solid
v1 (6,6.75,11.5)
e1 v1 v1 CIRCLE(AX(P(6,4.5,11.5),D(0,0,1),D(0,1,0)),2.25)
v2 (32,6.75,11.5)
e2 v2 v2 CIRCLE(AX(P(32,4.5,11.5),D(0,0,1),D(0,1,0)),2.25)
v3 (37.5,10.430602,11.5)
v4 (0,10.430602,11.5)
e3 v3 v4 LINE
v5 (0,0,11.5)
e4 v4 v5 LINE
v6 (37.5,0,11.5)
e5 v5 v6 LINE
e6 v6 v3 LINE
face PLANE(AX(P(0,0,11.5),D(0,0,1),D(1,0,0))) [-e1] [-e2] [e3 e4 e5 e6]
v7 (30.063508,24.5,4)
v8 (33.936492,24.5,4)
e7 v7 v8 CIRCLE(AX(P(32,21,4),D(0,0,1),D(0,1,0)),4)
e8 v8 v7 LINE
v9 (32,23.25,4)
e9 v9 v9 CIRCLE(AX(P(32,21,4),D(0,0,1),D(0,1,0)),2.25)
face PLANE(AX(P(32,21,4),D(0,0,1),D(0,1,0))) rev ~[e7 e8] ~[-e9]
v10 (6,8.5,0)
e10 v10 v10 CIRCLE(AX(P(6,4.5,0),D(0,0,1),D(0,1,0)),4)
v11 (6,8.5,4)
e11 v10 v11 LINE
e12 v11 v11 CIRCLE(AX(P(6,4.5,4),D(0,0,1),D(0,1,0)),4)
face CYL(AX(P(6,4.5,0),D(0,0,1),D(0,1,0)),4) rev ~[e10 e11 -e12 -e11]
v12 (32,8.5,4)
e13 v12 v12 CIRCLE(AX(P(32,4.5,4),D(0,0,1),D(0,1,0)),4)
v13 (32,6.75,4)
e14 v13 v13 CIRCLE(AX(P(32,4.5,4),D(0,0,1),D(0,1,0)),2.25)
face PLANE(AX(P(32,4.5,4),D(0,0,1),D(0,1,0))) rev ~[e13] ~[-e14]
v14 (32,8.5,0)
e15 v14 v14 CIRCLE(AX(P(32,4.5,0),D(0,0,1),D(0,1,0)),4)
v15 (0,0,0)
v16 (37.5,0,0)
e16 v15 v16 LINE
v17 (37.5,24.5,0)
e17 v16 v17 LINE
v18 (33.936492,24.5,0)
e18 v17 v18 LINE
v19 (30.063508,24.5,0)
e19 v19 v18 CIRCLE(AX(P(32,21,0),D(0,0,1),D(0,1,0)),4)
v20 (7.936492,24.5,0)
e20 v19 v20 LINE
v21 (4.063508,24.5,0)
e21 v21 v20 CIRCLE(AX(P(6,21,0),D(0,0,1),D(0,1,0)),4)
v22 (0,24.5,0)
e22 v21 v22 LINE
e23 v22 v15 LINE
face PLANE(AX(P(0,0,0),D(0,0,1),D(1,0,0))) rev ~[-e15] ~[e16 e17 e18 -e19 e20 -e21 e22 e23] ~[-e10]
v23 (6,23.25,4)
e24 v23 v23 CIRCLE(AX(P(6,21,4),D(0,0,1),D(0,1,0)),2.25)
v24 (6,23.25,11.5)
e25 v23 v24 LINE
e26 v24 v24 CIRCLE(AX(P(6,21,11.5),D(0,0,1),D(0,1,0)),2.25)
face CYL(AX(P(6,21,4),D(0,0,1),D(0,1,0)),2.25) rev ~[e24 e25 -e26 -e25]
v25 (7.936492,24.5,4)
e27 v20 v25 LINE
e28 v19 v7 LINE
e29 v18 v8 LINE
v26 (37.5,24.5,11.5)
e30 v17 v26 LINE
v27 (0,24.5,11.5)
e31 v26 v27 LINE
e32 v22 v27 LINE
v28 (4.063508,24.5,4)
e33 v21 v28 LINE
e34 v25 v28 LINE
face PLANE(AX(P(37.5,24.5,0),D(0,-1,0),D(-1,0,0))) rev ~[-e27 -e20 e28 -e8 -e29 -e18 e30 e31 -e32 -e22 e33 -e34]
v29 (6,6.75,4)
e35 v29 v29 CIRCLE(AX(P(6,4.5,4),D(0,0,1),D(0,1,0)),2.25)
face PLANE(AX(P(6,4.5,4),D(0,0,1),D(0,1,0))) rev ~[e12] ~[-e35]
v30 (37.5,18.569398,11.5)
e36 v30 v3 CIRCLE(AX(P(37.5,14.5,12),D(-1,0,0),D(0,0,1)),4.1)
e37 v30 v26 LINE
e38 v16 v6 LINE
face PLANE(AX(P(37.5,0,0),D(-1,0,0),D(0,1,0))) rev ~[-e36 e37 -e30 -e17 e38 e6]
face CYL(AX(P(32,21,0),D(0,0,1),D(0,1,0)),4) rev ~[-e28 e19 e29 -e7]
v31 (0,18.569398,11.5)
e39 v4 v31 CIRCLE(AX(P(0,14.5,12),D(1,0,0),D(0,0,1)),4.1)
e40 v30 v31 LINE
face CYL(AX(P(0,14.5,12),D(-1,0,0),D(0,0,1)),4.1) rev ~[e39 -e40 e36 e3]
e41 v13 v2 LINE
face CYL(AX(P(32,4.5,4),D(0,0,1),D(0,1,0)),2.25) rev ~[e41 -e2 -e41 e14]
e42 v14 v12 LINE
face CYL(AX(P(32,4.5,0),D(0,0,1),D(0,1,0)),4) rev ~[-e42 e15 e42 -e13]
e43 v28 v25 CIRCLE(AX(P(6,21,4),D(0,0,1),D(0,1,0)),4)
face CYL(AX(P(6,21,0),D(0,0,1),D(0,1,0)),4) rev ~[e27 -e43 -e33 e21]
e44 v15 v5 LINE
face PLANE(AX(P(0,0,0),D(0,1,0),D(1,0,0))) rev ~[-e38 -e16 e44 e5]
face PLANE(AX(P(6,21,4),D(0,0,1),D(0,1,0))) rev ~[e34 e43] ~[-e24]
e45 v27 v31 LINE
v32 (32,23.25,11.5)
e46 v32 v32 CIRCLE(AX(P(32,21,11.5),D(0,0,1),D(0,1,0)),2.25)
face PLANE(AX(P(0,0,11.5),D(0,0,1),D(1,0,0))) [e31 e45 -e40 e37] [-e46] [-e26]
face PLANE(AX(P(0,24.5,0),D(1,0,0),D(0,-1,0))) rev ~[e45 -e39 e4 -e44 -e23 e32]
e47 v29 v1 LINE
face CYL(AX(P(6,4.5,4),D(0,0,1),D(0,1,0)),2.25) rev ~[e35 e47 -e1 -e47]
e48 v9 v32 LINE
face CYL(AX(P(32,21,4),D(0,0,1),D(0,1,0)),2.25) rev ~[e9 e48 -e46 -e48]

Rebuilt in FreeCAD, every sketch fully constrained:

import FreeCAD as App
import Part
import Sketcher
from FreeCAD import Vector


def add_polygon(sketch, points):
    """Adds a closed chain of lines whose ends are joined by coincident constraints."""
    first, n = sketch.GeometryCount, len(points)
    for a, b in zip(points, points[1:] + points[:1]):
        sketch.addGeometry(Part.LineSegment(App.Vector(*a, 0), App.Vector(*b, 0)), False)
    for i in range(n):
        sketch.addConstraint(Sketcher.Constraint("Coincident", first + i, 2, first + (i + 1) % n, 1))

doc = App.newDocument("Part")
body = doc.addObject("PartDesign::Body", "Body")

# Sketch on XY plane
sketch1 = doc.addObject("Sketcher::SketchObject", "Sketch")
body.addObject(sketch1)
sketch1.AttachmentSupport = (doc.XY_Plane, [""])
sketch1.MapMode = "FlatFace"
add_polygon(sketch1, [(0, 24), (0, 0), (38, 0), (38, 24)])  # lines 0-3
sketch1.addConstraint(Sketcher.Constraint("Vertical", 0))
sketch1.addConstraint(Sketcher.Constraint("Horizontal", 1))
sketch1.addConstraint(Sketcher.Constraint("Vertical", 2))
sketch1.addConstraint(Sketcher.Constraint("Horizontal", 3))
sketch1.addConstraint(Sketcher.Constraint("Coincident", 0, 2, -1, 1))
sketch1.addConstraint(Sketcher.Constraint("DistanceX", 1, 1, 1, 2, 37.5))
sketch1.addConstraint(Sketcher.Constraint("DistanceY", 0, 2, 0, 1, 24.5))
pad1 = doc.addObject("PartDesign::Pad", "Pad")
body.addObject(pad1)
pad1.Profile = sketch1
pad1.Length = 11.5

# Sketch on YZ plane
sketch2 = doc.addObject("Sketcher::SketchObject", "Sketch001")
body.addObject(sketch2)
sketch2.AttachmentSupport = (doc.YZ_Plane, [""])
sketch2.MapMode = "FlatFace"
sketch2.addGeometry(Part.Circle(Vector(14.5, 12, 0), Vector(0, 0, 1), 4.1), False)
sketch2.addConstraint(Sketcher.Constraint("Diameter", 0, 8.2))
sketch2.addConstraint(Sketcher.Constraint("DistanceY", -1, 1, 0, 3, 12.0))
sketch2.addConstraint(Sketcher.Constraint("DistanceX", -1, 1, 0, 3, 14.5))
pocket1 = doc.addObject("PartDesign::Pocket", "Pocket")
body.addObject(pocket1)
pocket1.Profile = sketch2
pocket1.Length = 37.5
pocket1.Reversed = True

# Sketch on XY plane
sketch3 = doc.addObject("Sketcher::SketchObject", "Sketch002")
body.addObject(sketch3)
sketch3.AttachmentSupport = (doc.XY_Plane, [""])
sketch3.MapMode = "FlatFace"
sketch3.addGeometry(Part.Circle(Vector(6, 21, 0), Vector(0, 0, 1), 2.2), False)
sketch3.addGeometry(Part.Circle(Vector(32, 21, 0), Vector(0, 0, 1), 2.2), False)
sketch3.addGeometry(Part.Circle(Vector(32, 4.5, 0), Vector(0, 0, 1), 2.2), False)
sketch3.addGeometry(Part.Circle(Vector(6, 4.5, 0), Vector(0, 0, 1), 2.2), False)
sketch3.addConstraint(Sketcher.Constraint("Equal", 0, 1))
sketch3.addConstraint(Sketcher.Constraint("Equal", 1, 2))
sketch3.addConstraint(Sketcher.Constraint("Equal", 2, 3))
sketch3.addConstraint(Sketcher.Constraint("Horizontal", 0, 3, 1, 3))
sketch3.addConstraint(Sketcher.Constraint("Horizontal", 2, 3, 3, 3))
sketch3.addConstraint(Sketcher.Constraint("Vertical", 1, 3, 2, 3))
sketch3.addConstraint(Sketcher.Constraint("Vertical", 0, 3, 3, 3))
sketch3.addConstraint(Sketcher.Constraint("Diameter", 0, 4.5))
sketch3.addConstraint(Sketcher.Constraint("DistanceX", -1, 1, 0, 3, 6.0))
sketch3.addConstraint(Sketcher.Constraint("DistanceY", -1, 1, 0, 3, 21.0))
sketch3.addConstraint(Sketcher.Constraint("DistanceX", -1, 1, 1, 3, 32.0))
sketch3.addConstraint(Sketcher.Constraint("DistanceY", -1, 1, 2, 3, 4.5))
doc.recompute()
hole = doc.addObject("PartDesign::Hole", "Hole")
body.addObject(hole)
hole.Profile = sketch3
hole.ThreadType = "None"
hole.Diameter = 4.5
hole.DepthType = "Dimension"
hole.Depth = 11.5
hole.DrillPoint = "Flat"
hole.HoleCutType = "Counterbore"
hole.HoleCutDiameter = 8
hole.HoleCutDepth = 4
hole.Reversed = True

doc.recompute()
